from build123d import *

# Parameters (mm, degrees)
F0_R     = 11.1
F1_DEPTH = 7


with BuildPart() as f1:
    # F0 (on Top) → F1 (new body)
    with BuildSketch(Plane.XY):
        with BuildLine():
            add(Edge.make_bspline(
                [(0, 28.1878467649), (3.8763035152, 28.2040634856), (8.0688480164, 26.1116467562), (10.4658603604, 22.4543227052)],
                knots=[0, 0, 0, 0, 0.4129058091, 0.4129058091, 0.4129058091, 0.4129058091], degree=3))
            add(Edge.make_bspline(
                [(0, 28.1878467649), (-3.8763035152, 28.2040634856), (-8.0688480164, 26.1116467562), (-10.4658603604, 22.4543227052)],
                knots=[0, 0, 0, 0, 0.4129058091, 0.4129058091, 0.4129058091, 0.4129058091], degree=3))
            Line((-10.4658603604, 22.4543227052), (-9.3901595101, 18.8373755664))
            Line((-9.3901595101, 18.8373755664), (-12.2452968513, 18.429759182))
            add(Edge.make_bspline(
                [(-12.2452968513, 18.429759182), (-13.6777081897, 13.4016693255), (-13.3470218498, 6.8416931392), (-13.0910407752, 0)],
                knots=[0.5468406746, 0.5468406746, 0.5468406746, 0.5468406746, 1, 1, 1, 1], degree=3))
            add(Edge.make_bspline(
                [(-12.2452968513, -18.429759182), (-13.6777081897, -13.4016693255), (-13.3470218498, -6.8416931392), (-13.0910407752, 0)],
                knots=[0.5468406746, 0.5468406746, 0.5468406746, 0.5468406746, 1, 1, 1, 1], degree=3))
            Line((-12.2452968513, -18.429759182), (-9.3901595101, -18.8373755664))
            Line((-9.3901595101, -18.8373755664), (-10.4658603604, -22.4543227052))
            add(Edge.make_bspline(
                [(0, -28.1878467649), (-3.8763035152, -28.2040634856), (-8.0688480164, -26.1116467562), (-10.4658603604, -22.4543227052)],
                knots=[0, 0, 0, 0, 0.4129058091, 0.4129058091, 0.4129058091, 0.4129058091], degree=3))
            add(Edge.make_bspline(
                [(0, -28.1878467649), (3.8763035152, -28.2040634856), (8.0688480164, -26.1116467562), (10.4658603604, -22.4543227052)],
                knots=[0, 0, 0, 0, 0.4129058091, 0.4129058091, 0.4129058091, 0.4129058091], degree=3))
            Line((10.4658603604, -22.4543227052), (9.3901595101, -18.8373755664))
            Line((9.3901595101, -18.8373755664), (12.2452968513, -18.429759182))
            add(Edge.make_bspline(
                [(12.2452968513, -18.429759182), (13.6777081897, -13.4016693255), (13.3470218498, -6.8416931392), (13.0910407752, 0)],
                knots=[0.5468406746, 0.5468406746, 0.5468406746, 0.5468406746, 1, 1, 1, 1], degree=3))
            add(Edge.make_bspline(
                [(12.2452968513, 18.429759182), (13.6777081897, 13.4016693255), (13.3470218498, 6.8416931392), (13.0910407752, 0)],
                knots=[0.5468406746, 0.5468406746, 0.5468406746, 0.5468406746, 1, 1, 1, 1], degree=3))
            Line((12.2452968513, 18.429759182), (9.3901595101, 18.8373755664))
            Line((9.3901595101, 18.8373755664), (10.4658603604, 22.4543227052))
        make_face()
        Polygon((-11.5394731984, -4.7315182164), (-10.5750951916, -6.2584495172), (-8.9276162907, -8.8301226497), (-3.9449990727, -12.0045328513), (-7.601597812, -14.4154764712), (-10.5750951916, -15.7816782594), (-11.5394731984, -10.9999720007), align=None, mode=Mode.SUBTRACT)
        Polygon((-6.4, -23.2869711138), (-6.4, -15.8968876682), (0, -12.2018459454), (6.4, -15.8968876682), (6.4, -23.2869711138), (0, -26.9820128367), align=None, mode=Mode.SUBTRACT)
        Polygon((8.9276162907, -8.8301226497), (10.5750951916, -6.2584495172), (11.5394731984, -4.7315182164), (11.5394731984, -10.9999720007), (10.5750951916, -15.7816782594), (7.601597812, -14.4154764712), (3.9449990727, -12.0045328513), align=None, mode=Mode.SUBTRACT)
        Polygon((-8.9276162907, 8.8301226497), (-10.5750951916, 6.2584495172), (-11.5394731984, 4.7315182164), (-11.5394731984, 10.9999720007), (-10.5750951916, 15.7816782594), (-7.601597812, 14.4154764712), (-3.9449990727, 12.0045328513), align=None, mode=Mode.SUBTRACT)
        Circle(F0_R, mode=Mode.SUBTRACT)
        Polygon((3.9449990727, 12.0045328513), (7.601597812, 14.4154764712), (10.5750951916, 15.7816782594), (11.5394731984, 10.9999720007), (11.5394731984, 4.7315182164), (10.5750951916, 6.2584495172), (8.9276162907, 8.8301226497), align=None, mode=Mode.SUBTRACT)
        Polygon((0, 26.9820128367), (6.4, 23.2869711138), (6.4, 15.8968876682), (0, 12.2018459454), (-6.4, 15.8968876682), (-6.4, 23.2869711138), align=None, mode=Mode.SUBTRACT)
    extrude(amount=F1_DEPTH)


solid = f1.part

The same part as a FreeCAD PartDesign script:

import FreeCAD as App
import Part
import Sketcher
Q = App.Units.Quantity


def add_polygon(sketch, points):
    """Adds a closed chain of lines whose ends are joined by coincident constraints."""
    first, n = sketch.GeometryCount, len(points)
    for a, b in zip(points, points[1:] + points[:1]):
        sketch.addGeometry(Part.LineSegment(App.Vector(*a, 0), App.Vector(*b, 0)), False)
    for i in range(n):
        sketch.addConstraint(Sketcher.Constraint("Coincident", first + i, 2, first + (i + 1) % n, 1))

doc = App.newDocument("Part")
body = doc.addObject("PartDesign::Body", "Body")

# Sketch on XY plane
sketch1 = body.newObject("Sketcher::SketchObject", "Sketch")
sketch1.AttachmentSupport = (doc.getObject("XY_Plane"), [""])
sketch1.MapMode = "FlatFace"
sketch1.addGeometry(Part.BSplineCurve([App.Vector(0, 28.187847, 0), App.Vector(3.876304, 28.204063, 0), App.Vector(8.068848, 26.111647, 0), App.Vector(10.46586, 22.454323, 0)], [4, 4], [0, 0.412905809], False, 3, [1, 1, 1, 1], False), False)  # 0
sketch1.addGeometry(Part.BSplineCurve([App.Vector(0, 28.187847, 0), App.Vector(-3.876304, 28.204063, 0), App.Vector(-8.068848, 26.111647, 0), App.Vector(-10.46586, 22.454323, 0)], [4, 4], [0, 0.412905809], False, 3, [1, 1, 1, 1], False), False)  # 1
sketch1.addGeometry(Part.LineSegment(App.Vector(-10.46586, 22.454323, 0), App.Vector(-9.39016, 18.837376, 0)), False)  # 2
sketch1.addGeometry(Part.LineSegment(App.Vector(-9.39016, 18.837376, 0), App.Vector(-12.245297, 18.429759, 0)), False)  # 3
sketch1.addGeometry(Part.BSplineCurve([App.Vector(-12.245297, 18.429759, 0), App.Vector(-13.677708, 13.401669, 0), App.Vector(-13.347022, 6.841693, 0), App.Vector(-13.091041, 0, 0)], [4, 4], [0.546840675, 1], False, 3, [1, 1, 1, 1], False), False)  # 4
sketch1.addGeometry(Part.BSplineCurve([App.Vector(-12.245297, -18.429759, 0), App.Vector(-13.677708, -13.401669, 0), App.Vector(-13.347022, -6.841693, 0), App.Vector(-13.091041, 0, 0)], [4, 4], [0.546840675, 1], False, 3, [1, 1, 1, 1], False), False)  # 5
sketch1.addGeometry(Part.LineSegment(App.Vector(-12.245297, -18.429759, 0), App.Vector(-9.39016, -18.837376, 0)), False)  # 6
sketch1.addGeometry(Part.LineSegment(App.Vector(-9.39016, -18.837376, 0), App.Vector(-10.46586, -22.454323, 0)), False)  # 7
sketch1.addGeometry(Part.BSplineCurve([App.Vector(0, -28.187847, 0), App.Vector(-3.876304, -28.204063, 0), App.Vector(-8.068848, -26.111647, 0), App.Vector(-10.46586, -22.454323, 0)], [4, 4], [0, 0.412905809], False, 3, [1, 1, 1, 1], False), False)  # 8
sketch1.addGeometry(Part.BSplineCurve([App.Vector(0, -28.187847, 0), App.Vector(3.876304, -28.204063, 0), App.Vector(8.068848, -26.111647, 0), App.Vector(10.46586, -22.454323, 0)], [4, 4], [0, 0.412905809], False, 3, [1, 1, 1, 1], False), False)  # 9
sketch1.addGeometry(Part.LineSegment(App.Vector(10.46586, -22.454323, 0), App.Vector(9.39016, -18.837376, 0)), False)  # 10
sketch1.addGeometry(Part.LineSegment(App.Vector(9.39016, -18.837376, 0), App.Vector(12.245297, -18.429759, 0)), False)  # 11
sketch1.addGeometry(Part.BSplineCurve([App.Vector(12.245297, -18.429759, 0), App.Vector(13.677708, -13.401669, 0), App.Vector(13.347022, -6.841693, 0), App.Vector(13.091041, 0, 0)], [4, 4], [0.546840675, 1], False, 3, [1, 1, 1, 1], False), False)  # 12
sketch1.addGeometry(Part.BSplineCurve([App.Vector(12.245297, 18.429759, 0), App.Vector(13.677708, 13.401669, 0), App.Vector(13.347022, 6.841693, 0), App.Vector(13.091041, 0, 0)], [4, 4], [0.546840675, 1], False, 3, [1, 1, 1, 1], False), False)  # 13
sketch1.addGeometry(Part.LineSegment(App.Vector(12.245297, 18.429759, 0), App.Vector(9.39016, 18.837376, 0)), False)  # 14
sketch1.addGeometry(Part.LineSegment(App.Vector(9.39016, 18.837376, 0), App.Vector(10.46586, 22.454323, 0)), False)  # 15
add_polygon(sketch1, [(8.927616, -8.830123), (10.575095, -6.25845), (11.539473, -4.731518), (11.539473, -10.999972), (10.575095, -15.781678), (7.601598, -14.415476), (3.944999, -12.004533)])  # lines 16-22
add_polygon(sketch1, [(-6.4, -23.286971), (-6.4, -15.896888), (0, -12.201846), (6.4, -15.896888), (6.4, -23.286971), (0, -26.982013)])  # lines 23-28
add_polygon(sketch1, [(-11.539473, -4.731518), (-10.575095, -6.25845), (-8.927616, -8.830123), (-3.944999, -12.004533), (-7.601598, -14.415476), (-10.575095, -15.781678), (-11.539473, -10.999972)])  # lines 29-35
add_polygon(sketch1, [(3.944999, 12.004533), (7.601598, 14.415476), (10.575095, 15.781678), (11.539473, 10.999972), (11.539473, 4.731518), (10.575095, 6.25845), (8.927616, 8.830123)])  # lines 36-42
sketch1.addGeometry(Part.Circle(App.Vector(0, 0, 0), App.Vector(0, 0, 1), 11.1), False)  # 43
add_polygon(sketch1, [(-8.927616, 8.830123), (-10.575095, 6.25845), (-11.539473, 4.731518), (-11.539473, 10.999972), (-10.575095, 15.781678), (-7.601598, 14.415476), (-3.944999, 12.004533)])  # lines 44-50
add_polygon(sketch1, [(0, 26.982013), (6.4, 23.286971), (6.4, 15.896888), (0, 12.201846), (-6.4, 15.896888), (-6.4, 23.286971)])  # lines 51-56
sketch1.addConstraint(Sketcher.Constraint("Block", 0))
sketch1.addConstraint(Sketcher.Constraint("Block", 1))
sketch1.addConstraint(Sketcher.Constraint("Block", 4))
sketch1.addConstraint(Sketcher.Constraint("Block", 5))
sketch1.addConstraint(Sketcher.Constraint("Block", 8))
sketch1.addConstraint(Sketcher.Constraint("Block", 9))
sketch1.addConstraint(Sketcher.Constraint("Block", 12))
sketch1.addConstraint(Sketcher.Constraint("Block", 13))
sketch1.addConstraint(Sketcher.Constraint("Coincident", 1, 2, 2, 1))
sketch1.addConstraint(Sketcher.Constraint("Coincident", 2, 2, 3, 1))
sketch1.addConstraint(Sketcher.Constraint("Coincident", 3, 2, 4, 1))
sketch1.addConstraint(Sketcher.Constraint("Coincident", 5, 1, 6, 1))
sketch1.addConstraint(Sketcher.Constraint("Coincident", 6, 2, 7, 1))
sketch1.addConstraint(Sketcher.Constraint("Coincident", 7, 2, 8, 2))
sketch1.addConstraint(Sketcher.Constraint("Coincident", 9, 2, 10, 1))
sketch1.addConstraint(Sketcher.Constraint("Coincident", 10, 2, 11, 1))
sketch1.addConstraint(Sketcher.Constraint("Coincident", 11, 2, 12, 1))
sketch1.addConstraint(Sketcher.Constraint("Coincident", 13, 1, 14, 1))
sketch1.addConstraint(Sketcher.Constraint("Coincident", 14, 2, 15, 1))
sketch1.addConstraint(Sketcher.Constraint("Coincident", 15, 2, 0, 2))
sketch1.addConstraint(Sketcher.Constraint("Vertical", 18))
sketch1.addConstraint(Sketcher.Constraint("Vertical", 23))
sketch1.addConstraint(Sketcher.Constraint("Vertical", 26))
sketch1.addConstraint(Sketcher.Constraint("Vertical", 35))
sketch1.addConstraint(Sketcher.Constraint("Vertical", 39))
sketch1.addConstraint(Sketcher.Constraint("Vertical", 46))
sketch1.addConstraint(Sketcher.Constraint("Vertical", 52))
sketch1.addConstraint(Sketcher.Constraint("Vertical", 55))
sketch1.addConstraint(Sketcher.Constraint("Coincident", 43, 3, -1, 1))
sketch1.addConstraint(Sketcher.Constraint("Symmetric", 2, 2, 10, 2, -1, 1))
sketch1.addConstraint(Sketcher.Constraint("Symmetric", 6, 2, 14, 2, -1, 1))
sketch1.addConstraint(Sketcher.Constraint("Symmetric", 32, 2, 36, 2, -1, 1))
sketch1.addConstraint(Sketcher.Constraint("Symmetric", 33, 2, 37, 2, -1, 1))
sketch1.addConstraint(Sketcher.Constraint("Symmetric", 34, 2, 38, 2, -1, 1))
sketch1.addConstraint(Sketcher.Constraint("Symmetric", 29, 2, 40, 2, -1, 1))
sketch1.addConstraint(Sketcher.Constraint("Symmetric", 30, 2, 41, 2, -1, 1))
sketch1.addConstraint(Sketcher.Constraint("Symmetric", 31, 2, 42, 2, -1, 1))
sketch1.addConstraint(Sketcher.Constraint("Symmetric", 16, 2, 44, 2, -1, 1))
sketch1.addConstraint(Sketcher.Constraint("Symmetric", 17, 2, 45, 2, -1, 1))
sketch1.addConstraint(Sketcher.Constraint("Symmetric", 19, 2, 47, 2, -1, 1))
sketch1.addConstraint(Sketcher.Constraint("Symmetric", 20, 2, 48, 2, -1, 1))
sketch1.addConstraint(Sketcher.Constraint("Symmetric", 21, 2, 49, 2, -1, 1))
sketch1.addConstraint(Sketcher.Constraint("Symmetric", 22, 2, 50, 2, -1, 1))
sketch1.addConstraint(Sketcher.Constraint("Symmetric", 28, 2, 51, 2, -1, 1))
sketch1.addConstraint(Sketcher.Constraint("Symmetric", 24, 2, 53, 2, -1, 1))
sketch1.addConstraint(Sketcher.Constraint("Symmetric", 25, 2, 54, 2, -1, 1))
sketch1.addConstraint(Sketcher.Constraint("Symmetric", 27, 2, 56, 2, -1, 1))
sketch1.addConstraint(Sketcher.Constraint("Symmetric", 6, 2, 10, 2, -2))
sketch1.addConstraint(Sketcher.Constraint("Symmetric", 23, 2, 25, 2, -2))
sketch1.addConstraint(Sketcher.Constraint("Symmetric", 16, 2, 29, 2, -2))
sketch1.addConstraint(Sketcher.Constraint("Symmetric", 22, 2, 30, 2, -2))
sketch1.addConstraint(Sketcher.Constraint("Symmetric", 21, 2, 31, 2, -2))
sketch1.addConstraint(Sketcher.Constraint("Symmetric", 20, 2, 32, 2, -2))
sketch1.addConstraint(Sketcher.Constraint("Symmetric", 19, 2, 33, 2, -2))
sketch1.addConstraint(Sketcher.Constraint("Symmetric", 18, 2, 34, 2, -2))
sketch1.addConstraint(Sketcher.Constraint("PointOnObject", 24, 2, -2))
sketch1.addConstraint(Sketcher.Constraint("PointOnObject", 27, 2, -2))
sketch1.addConstraint(Sketcher.Constraint("Parallel", 24, 27))
sketch1.addConstraint(Sketcher.Constraint("Parallel", 25, 28))
sketch1.addConstraint(Sketcher.Constraint("Parallel", 29, 40))
sketch1.addConstraint(Sketcher.Constraint("Parallel", 19, 47))
sketch1.addConstraint(Sketcher.Constraint("Parallel", 27, 53))
sketch1.addConstraint(Sketcher.Constraint("Parallel", 53, 56))
sketch1.addConstraint(Sketcher.Constraint("Horizontal", 17, 2, 35, 2))
sketch1.addConstraint(Sketcher.Constraint("Vertical", 16, 2, 19, 2))
sketch1.addConstraint(Sketcher.Constraint("Diameter", 43, 22.2))
sketch1.addConstraint(Sketcher.Constraint("Angle", 24, Q("30 deg")))
sketch1.addConstraint(Sketcher.Constraint("DistanceX", 23, 2, -1, 1, 6.4))
sketch1.addConstraint(Sketcher.Constraint("DistanceX", 31, 2, 21, 2, 7.889998))
sketch1.addConstraint(Sketcher.Constraint("DistanceX", 7, 2, 6, 2, 1.075701))
sketch1.addConstraint(Sketcher.Constraint("DistanceY", 7, 2, 2, 2, 41.291698))
sketch1.addConstraint(Sketcher.Constraint("DistanceX", 16, 2, 11, 2, 1.670202))
sketch1.addConstraint(Sketcher.Constraint("DistanceY", 19, 2, 20, 2, 1.366202))
sketch1.addConstraint(Sketcher.Constraint("DistanceY", 10, 2, 20, 2, 4.421899))
sketch1.addConstraint(Sketcher.Constraint("DistanceX", 20, 2, 11, 2, 4.643699))
sketch1.addConstraint(Sketcher.Constraint("DistanceY", 29, 2, 44, 2, 12.516899))
sketch1.addConstraint(Sketcher.Constraint("Distance", 21, 4.379882))
sketch1.addConstraint(Sketcher.Constraint("DistanceY", 18, 2, 18, 1, 6.268454))
sketch1.addConstraint(Sketcher.Constraint("DistanceY", 23, 1, 23, 2, 7.390083))
sketch1.addConstraint(Sketcher.Constraint("DistanceY", 17, 2, -1, 1, 4.731518))
sketch1.addConstraint(Sketcher.Constraint("DistanceY", 26, 2, -1, 1, 23.286971))
sketch1.addConstraint(Sketcher.Constraint("DistanceX", 16, 2, 17, 2, 0.964378))
sketch1.addConstraint(Sketcher.Constraint("DistanceX", 22, 2, 16, 2, 1.647479))
sketch1.addConstraint(Sketcher.Constraint("DistanceY", 18, 2, 22, 2, 2.169849))
pad1 = body.newObject("PartDesign::Pad", "Pad")
pad1.Profile = sketch1
pad1.Length = 7

doc.recompute()
